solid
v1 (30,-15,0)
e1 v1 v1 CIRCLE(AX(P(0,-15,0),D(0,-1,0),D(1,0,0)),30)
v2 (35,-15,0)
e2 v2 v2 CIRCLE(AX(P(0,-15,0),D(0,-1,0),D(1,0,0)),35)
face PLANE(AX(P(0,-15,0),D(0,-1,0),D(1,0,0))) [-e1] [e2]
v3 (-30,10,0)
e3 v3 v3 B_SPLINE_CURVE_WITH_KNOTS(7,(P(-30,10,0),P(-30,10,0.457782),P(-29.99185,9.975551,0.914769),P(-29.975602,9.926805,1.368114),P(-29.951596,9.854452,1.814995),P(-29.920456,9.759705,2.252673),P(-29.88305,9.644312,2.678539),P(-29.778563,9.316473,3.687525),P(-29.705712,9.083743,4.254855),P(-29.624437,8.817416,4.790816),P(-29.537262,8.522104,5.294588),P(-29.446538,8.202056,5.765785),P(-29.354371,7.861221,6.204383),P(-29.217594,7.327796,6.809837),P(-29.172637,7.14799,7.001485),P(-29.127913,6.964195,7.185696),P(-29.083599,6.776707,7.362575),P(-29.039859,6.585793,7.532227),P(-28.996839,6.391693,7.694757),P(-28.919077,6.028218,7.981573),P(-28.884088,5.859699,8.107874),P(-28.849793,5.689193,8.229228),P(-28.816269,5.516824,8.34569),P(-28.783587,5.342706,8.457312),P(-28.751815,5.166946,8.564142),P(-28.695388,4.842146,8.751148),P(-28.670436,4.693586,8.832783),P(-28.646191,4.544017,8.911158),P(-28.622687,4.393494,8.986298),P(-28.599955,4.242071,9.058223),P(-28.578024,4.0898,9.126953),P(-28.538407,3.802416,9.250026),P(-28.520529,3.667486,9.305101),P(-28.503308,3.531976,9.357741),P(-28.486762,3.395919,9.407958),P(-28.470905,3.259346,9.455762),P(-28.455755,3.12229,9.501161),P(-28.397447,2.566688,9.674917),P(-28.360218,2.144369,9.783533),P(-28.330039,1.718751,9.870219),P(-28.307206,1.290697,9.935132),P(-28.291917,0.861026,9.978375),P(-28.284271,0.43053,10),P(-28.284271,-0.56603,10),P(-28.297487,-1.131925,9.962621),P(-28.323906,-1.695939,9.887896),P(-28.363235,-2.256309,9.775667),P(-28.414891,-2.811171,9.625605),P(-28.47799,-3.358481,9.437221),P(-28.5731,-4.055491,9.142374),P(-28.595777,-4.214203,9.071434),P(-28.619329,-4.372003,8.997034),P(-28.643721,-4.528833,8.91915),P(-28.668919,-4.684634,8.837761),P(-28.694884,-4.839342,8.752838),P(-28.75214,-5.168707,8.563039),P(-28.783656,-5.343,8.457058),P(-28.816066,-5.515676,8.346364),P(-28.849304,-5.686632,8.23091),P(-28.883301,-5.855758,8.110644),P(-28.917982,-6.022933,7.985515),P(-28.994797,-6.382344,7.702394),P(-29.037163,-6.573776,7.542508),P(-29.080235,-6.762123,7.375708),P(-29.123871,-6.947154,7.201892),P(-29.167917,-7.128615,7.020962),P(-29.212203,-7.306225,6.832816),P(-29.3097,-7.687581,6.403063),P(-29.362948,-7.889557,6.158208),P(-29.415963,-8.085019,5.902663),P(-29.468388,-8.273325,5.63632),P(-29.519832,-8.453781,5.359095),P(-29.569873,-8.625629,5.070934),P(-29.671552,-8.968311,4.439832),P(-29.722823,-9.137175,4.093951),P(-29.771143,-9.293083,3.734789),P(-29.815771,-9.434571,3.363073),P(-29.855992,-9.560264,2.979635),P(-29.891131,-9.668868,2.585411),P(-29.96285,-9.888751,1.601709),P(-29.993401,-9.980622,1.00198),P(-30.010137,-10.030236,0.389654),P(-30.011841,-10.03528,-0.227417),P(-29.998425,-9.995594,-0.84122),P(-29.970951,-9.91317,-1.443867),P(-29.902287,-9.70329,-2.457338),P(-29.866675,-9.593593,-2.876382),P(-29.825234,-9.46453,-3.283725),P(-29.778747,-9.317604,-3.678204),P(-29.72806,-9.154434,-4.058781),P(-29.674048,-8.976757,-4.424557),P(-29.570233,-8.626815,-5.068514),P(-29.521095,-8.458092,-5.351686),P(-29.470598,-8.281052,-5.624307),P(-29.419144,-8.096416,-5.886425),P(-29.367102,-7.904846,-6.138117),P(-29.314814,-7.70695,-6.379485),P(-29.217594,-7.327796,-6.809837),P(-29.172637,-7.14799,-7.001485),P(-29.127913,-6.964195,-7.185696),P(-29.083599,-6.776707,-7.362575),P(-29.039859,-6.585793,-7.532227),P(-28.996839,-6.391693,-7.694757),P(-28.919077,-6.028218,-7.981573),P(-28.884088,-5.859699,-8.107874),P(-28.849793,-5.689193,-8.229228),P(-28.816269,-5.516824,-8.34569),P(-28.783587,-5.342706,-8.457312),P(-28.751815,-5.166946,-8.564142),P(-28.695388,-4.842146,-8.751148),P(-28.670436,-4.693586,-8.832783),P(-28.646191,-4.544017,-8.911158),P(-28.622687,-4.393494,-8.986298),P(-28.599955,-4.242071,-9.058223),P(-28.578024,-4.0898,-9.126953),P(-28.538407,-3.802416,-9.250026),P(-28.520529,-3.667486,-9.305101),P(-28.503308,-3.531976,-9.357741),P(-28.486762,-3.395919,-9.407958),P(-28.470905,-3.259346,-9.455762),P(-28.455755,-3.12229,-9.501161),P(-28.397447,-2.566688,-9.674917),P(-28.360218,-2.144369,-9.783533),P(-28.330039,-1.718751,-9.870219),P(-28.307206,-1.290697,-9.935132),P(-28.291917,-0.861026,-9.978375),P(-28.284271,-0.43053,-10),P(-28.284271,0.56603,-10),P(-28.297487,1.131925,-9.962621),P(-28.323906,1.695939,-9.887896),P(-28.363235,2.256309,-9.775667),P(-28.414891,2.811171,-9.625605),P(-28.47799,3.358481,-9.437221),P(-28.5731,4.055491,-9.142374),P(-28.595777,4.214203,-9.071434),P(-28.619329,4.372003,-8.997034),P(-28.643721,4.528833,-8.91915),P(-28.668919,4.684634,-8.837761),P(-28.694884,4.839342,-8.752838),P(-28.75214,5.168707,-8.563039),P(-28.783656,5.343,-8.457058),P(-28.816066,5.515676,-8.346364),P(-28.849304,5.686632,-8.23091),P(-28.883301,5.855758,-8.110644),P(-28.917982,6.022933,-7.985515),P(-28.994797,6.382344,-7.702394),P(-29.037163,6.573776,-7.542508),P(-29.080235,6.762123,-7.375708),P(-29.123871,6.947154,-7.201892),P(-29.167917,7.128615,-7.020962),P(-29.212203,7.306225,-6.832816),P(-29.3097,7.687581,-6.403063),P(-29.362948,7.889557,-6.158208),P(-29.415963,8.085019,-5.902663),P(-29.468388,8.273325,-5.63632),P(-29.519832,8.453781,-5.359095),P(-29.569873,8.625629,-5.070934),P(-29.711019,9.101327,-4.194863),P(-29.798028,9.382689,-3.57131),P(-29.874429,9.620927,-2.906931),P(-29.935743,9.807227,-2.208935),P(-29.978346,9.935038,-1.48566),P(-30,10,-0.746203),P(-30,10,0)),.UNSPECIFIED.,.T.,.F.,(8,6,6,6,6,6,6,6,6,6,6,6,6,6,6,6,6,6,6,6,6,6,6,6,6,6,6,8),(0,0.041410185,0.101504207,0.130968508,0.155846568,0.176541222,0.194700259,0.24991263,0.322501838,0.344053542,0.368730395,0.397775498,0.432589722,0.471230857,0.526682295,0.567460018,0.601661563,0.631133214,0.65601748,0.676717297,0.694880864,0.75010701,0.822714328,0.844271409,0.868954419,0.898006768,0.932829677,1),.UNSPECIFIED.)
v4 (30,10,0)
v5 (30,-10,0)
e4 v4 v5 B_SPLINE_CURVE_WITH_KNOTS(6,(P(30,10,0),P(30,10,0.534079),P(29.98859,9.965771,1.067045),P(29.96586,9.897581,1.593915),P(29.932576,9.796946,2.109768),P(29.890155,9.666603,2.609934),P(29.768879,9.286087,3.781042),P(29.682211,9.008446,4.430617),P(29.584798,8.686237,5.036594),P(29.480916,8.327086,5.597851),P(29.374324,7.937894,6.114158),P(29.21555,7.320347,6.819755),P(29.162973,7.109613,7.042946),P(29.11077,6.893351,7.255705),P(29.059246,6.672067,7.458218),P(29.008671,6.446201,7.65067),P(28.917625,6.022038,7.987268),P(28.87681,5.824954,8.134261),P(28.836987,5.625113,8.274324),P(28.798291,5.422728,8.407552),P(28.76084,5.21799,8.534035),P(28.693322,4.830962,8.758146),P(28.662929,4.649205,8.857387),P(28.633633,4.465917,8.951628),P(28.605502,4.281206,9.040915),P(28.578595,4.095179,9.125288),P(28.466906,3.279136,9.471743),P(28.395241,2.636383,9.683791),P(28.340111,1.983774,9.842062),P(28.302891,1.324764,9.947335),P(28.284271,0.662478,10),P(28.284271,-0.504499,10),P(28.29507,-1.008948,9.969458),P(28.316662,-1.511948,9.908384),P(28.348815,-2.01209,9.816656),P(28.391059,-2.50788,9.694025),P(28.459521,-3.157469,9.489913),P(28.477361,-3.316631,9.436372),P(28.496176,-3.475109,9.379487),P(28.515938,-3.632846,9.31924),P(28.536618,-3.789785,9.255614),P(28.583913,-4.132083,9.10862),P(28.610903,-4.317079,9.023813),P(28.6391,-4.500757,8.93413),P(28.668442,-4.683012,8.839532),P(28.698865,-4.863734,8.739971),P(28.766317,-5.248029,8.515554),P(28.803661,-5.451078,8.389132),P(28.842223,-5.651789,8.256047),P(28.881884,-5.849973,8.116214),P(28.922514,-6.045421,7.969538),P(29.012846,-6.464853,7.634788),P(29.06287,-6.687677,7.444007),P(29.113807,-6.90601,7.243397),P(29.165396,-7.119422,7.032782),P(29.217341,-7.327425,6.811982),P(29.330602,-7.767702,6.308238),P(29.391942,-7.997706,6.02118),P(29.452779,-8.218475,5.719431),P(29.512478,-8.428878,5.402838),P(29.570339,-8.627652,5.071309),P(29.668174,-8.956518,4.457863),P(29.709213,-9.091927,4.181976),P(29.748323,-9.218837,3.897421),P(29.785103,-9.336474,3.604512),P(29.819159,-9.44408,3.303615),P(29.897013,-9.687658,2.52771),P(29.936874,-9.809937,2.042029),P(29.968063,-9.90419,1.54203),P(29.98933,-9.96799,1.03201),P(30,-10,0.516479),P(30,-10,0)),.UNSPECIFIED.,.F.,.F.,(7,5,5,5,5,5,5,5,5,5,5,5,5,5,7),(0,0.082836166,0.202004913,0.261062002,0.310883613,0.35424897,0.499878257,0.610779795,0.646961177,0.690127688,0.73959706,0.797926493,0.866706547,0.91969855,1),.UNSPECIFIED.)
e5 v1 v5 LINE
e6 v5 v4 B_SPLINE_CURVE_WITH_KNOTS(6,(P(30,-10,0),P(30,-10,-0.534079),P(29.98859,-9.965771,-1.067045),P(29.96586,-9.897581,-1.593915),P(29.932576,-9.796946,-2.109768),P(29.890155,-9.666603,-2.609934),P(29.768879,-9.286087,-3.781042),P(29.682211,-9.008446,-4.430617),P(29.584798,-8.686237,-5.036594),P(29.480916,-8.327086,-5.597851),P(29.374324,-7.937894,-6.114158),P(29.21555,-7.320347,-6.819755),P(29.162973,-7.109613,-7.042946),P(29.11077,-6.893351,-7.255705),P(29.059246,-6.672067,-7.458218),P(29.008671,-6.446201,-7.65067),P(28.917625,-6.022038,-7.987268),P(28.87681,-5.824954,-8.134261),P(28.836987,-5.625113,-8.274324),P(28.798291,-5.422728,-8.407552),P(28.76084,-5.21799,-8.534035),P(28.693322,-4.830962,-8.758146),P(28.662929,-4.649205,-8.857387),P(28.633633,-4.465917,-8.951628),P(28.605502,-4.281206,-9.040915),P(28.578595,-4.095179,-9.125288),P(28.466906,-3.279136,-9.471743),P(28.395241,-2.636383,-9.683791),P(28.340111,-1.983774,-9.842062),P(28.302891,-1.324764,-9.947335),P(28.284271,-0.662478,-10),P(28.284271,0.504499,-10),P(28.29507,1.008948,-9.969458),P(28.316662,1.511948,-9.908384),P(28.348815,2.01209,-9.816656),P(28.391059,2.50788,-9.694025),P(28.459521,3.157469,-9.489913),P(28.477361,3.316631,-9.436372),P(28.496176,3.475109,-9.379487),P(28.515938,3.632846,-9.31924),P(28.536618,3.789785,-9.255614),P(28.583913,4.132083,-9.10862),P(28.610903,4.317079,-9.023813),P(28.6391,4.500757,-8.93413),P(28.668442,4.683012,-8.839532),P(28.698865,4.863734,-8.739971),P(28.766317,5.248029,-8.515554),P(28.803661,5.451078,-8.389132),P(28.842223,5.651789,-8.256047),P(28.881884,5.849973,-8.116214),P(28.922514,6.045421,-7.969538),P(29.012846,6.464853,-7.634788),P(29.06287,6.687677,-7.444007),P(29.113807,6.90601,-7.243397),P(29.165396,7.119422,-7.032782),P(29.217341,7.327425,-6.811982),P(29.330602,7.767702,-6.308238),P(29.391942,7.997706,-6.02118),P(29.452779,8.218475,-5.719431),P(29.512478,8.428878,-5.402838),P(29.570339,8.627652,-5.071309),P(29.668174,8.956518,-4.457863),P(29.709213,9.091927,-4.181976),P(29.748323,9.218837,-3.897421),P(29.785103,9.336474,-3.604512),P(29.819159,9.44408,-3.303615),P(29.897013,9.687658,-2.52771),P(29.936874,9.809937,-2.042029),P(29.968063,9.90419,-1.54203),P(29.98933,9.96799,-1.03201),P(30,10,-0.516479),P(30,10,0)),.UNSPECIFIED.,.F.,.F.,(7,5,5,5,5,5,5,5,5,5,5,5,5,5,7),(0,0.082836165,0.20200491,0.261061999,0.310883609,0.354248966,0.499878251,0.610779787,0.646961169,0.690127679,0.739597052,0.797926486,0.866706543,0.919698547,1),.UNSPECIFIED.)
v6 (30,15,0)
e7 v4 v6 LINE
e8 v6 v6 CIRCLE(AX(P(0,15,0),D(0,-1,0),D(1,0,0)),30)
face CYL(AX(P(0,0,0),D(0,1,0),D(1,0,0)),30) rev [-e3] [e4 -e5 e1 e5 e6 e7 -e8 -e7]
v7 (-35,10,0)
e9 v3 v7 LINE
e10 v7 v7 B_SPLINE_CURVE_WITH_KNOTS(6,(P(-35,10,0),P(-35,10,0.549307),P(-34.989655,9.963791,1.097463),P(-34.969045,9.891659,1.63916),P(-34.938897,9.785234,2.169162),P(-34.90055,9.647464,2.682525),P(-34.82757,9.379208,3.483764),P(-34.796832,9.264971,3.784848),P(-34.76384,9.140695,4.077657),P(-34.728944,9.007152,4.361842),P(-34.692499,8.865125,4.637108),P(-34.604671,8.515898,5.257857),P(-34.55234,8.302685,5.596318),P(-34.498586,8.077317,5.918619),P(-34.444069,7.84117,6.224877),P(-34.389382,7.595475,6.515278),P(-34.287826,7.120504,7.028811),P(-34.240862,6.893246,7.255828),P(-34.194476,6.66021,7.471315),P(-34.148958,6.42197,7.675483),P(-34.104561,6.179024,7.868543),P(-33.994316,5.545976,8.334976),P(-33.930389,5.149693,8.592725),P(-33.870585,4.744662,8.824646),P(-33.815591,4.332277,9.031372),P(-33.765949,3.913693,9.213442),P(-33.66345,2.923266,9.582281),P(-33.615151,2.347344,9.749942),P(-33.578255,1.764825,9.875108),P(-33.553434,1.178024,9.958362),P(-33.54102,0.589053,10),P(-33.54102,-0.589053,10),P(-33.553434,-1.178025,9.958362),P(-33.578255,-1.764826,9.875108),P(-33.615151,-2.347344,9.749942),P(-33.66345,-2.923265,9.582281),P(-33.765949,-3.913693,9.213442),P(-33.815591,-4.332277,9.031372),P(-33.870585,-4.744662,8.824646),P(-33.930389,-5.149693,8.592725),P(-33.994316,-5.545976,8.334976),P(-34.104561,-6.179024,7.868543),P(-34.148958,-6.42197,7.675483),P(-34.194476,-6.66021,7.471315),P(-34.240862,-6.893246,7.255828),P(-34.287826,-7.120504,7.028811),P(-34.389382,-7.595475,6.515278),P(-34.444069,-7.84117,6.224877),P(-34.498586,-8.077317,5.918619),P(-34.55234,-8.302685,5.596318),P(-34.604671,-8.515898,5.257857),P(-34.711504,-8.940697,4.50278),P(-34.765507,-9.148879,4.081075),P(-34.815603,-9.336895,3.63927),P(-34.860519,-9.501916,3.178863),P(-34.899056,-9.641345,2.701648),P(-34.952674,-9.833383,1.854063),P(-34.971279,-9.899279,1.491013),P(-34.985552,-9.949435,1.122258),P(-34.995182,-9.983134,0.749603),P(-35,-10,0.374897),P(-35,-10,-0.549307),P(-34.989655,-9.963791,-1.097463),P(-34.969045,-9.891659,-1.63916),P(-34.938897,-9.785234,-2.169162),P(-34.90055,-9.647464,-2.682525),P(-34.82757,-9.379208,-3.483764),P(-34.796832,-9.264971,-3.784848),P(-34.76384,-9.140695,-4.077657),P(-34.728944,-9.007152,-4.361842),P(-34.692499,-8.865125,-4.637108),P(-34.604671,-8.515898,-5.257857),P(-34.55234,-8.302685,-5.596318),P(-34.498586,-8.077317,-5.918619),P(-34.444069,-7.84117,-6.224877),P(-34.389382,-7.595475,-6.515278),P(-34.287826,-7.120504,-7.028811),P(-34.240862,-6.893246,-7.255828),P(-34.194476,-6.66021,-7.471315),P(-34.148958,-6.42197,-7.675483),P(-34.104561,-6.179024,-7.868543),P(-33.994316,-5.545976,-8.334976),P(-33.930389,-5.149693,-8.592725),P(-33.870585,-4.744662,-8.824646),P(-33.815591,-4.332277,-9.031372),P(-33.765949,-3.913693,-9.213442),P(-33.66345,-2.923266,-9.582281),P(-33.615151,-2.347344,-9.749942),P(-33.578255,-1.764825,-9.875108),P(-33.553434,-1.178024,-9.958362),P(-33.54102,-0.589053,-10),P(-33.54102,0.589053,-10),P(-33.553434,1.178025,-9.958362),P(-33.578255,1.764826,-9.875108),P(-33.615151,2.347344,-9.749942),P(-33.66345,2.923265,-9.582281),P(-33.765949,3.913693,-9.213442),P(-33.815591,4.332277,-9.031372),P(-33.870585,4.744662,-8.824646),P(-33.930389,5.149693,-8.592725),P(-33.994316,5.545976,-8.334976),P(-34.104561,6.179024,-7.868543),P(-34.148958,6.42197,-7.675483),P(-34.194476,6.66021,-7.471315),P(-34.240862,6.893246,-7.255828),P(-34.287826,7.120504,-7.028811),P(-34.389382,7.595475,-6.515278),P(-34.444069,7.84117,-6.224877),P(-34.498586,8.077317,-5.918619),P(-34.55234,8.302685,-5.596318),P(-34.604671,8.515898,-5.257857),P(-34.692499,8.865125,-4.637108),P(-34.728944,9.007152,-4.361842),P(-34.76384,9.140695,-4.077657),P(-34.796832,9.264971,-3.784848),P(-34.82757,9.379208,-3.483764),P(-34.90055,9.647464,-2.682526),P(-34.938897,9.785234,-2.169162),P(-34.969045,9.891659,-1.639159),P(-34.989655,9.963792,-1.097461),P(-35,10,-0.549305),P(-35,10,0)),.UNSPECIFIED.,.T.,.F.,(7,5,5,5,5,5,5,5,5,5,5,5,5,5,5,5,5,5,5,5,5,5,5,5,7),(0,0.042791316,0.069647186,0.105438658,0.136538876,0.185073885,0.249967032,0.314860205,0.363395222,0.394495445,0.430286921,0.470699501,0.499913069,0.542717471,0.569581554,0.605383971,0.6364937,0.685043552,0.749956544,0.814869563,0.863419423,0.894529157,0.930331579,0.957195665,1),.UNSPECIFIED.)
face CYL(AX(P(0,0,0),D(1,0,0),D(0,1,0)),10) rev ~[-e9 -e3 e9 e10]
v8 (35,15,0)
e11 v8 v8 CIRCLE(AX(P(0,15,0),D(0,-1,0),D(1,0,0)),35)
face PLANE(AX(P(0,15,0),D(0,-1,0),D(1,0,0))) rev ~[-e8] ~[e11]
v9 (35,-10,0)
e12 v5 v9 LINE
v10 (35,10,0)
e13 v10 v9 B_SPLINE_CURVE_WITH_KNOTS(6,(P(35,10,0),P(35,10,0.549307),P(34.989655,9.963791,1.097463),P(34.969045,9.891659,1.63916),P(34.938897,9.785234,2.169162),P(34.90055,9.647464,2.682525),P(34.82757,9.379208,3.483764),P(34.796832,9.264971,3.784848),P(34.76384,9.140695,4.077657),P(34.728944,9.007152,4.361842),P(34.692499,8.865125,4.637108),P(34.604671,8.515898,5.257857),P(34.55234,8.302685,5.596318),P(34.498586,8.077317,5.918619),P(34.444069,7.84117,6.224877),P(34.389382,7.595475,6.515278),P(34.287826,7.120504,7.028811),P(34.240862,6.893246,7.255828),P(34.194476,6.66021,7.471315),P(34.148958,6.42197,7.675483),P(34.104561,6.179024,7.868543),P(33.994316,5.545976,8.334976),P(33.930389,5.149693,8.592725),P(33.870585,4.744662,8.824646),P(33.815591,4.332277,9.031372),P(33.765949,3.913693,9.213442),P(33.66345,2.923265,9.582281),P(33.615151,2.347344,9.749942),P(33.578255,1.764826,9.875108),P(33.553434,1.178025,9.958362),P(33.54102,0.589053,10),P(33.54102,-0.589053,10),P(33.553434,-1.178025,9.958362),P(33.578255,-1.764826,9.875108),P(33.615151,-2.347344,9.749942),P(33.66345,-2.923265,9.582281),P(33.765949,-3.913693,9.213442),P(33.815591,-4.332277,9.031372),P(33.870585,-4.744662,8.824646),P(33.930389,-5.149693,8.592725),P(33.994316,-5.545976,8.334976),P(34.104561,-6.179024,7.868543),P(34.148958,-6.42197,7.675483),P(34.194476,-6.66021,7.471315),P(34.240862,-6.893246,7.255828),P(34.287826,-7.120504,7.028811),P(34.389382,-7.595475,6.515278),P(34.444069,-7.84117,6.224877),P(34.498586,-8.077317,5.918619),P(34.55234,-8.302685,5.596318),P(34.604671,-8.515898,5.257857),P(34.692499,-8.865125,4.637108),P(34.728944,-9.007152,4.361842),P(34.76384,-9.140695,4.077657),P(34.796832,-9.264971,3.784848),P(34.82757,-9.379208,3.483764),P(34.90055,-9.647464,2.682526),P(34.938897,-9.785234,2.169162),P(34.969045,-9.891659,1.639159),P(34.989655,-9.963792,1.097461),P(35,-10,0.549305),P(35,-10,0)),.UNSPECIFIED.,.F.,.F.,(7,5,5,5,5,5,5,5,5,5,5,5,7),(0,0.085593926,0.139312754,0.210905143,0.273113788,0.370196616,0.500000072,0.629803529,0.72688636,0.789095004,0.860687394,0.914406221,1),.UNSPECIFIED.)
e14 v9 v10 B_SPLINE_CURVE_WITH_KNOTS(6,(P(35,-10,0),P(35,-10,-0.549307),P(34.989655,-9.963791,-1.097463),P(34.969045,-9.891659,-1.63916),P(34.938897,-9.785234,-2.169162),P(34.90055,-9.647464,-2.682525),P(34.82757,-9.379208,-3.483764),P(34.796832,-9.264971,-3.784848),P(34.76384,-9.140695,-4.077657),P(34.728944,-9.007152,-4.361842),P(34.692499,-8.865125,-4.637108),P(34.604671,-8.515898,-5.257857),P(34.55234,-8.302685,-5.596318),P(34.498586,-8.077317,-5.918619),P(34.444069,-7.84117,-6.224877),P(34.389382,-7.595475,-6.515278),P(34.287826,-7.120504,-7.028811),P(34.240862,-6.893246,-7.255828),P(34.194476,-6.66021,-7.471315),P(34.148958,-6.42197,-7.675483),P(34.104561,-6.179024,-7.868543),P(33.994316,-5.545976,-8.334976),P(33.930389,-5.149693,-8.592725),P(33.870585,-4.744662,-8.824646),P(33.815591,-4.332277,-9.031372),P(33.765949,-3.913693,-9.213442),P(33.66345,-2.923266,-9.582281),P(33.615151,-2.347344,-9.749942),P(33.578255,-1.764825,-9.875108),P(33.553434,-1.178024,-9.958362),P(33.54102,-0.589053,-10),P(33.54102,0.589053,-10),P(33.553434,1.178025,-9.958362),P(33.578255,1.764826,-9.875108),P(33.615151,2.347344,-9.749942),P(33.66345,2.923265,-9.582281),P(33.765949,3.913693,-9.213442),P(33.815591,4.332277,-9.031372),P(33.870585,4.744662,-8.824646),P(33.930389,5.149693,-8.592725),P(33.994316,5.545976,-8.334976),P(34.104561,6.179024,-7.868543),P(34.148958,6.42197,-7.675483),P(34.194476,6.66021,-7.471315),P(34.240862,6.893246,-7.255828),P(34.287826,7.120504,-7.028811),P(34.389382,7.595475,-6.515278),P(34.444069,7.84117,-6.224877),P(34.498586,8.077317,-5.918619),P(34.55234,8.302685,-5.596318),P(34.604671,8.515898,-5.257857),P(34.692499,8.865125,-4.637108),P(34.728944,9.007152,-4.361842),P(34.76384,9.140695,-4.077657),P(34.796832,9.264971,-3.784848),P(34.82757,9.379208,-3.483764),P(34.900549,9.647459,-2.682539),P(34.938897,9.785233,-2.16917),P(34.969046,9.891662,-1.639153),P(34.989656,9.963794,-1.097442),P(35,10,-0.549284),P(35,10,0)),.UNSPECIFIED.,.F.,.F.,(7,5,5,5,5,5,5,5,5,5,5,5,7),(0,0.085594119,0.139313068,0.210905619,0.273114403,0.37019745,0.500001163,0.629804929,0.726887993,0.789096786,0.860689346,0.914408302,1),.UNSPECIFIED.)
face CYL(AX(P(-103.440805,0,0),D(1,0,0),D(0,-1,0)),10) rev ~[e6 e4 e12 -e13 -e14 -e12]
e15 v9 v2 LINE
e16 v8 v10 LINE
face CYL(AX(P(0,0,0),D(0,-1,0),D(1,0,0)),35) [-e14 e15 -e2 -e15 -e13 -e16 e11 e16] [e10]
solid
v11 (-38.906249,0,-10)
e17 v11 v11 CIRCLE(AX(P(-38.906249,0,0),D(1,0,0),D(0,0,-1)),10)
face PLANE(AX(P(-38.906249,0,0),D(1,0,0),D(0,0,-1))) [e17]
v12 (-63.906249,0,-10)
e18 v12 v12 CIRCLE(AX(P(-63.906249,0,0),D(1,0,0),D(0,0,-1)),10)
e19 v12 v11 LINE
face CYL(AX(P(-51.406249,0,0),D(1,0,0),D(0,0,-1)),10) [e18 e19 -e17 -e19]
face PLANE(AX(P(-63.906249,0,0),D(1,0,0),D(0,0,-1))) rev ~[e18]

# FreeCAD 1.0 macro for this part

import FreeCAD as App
import Part
import Sketcher
Q = App.Units.Quantity


def add_polygon(sketch, points):
    """Adds a closed chain of lines whose ends are joined by coincident constraints."""
    first, n = sketch.GeometryCount, len(points)
    for a, b in zip(points, points[1:] + points[:1]):
        sketch.addGeometry(Part.LineSegment(App.Vector(*a, 0), App.Vector(*b, 0)), False)
    for i in range(n):
        sketch.addConstraint(Sketcher.Constraint("Coincident", first + i, 2, first + (i + 1) % n, 1))

doc = App.newDocument("Part")
body = doc.addObject("PartDesign::Body", "Body")

sketch1 = body.newObject("Sketcher::SketchObject", "Sketch")
sketch1.AttachmentSupport = (doc.getObject("XZ_Plane"), [""])
sketch1.MapMode = "FlatFace"
sketch1.addGeometry([
    Part.Circle(App.Vector(0, 0, 0), App.Vector(0, 0, 1), 35),
    Part.Circle(App.Vector(0, 0, 0), App.Vector(0, 0, 1), 30),
], False)
sketch1.addConstraint([
    Sketcher.Constraint("Coincident", 0, 3, -1, 1),
    Sketcher.Constraint("Coincident", 1, 3, -1, 1),
    Sketcher.Constraint("Diameter", 0, Q("70 mm")),
    Sketcher.Constraint("Diameter", 1, Q("60 mm")),
])
pad1 = body.newObject("PartDesign::Pad", "Pad")
pad1.Profile = sketch1
pad1.Length = 30
pad1.Midplane = True

sketch2 = body.newObject("Sketcher::SketchObject", "Sketch001")
sketch2.AttachmentSupport = (doc.getObject("YZ_Plane"), [""])
sketch2.MapMode = "FlatFace"
sketch2.addGeometry(Part.Circle(App.Vector(0, 0, 0), App.Vector(0, 0, 1), 10), False)
sketch2.addConstraint([
    Sketcher.Constraint("Coincident", 0, 3, -1, 1),
    Sketcher.Constraint("Diameter", 0, Q("20 mm")),
])
pocket1 = body.newObject("PartDesign::Pocket", "Pocket")
pocket1.Profile = sketch2
pocket1.Type = "ThroughAll"

sketch3 = body.newObject("Sketcher::SketchObject", "Sketch002")
sketch3.AttachmentSupport = (doc.getObject("YZ_Plane"), [""])
sketch3.MapMode = "FlatFace"
sketch3.addGeometry(Part.Circle(App.Vector(0, 0, 0), App.Vector(0, 0, 1), 10), False)
sketch3.addConstraint([
    Sketcher.Constraint("Coincident", 0, 3, -1, 1),
    Sketcher.Constraint("Diameter", 0, Q("20 mm")),
])
doc.recompute()
hole = body.newObject("PartDesign::Hole", "Hole")
hole.Profile = sketch3
hole.ThreadType = "None"
hole.Diameter = 20
hole.DepthType = "ThroughAll"
hole.Reversed = True
body2 = doc.addObject("PartDesign::Body", "Body001")

sketch4 = body2.newObject("Sketcher::SketchObject", "Sketch003")
sketch4.AttachmentSupport = (doc.getObject("XZ_Plane001"), [""])
sketch4.MapMode = "FlatFace"
add_polygon(sketch4, [(-64, 0), (-64, -10), (-39, -10), (-39, 0)])
sketch4.addConstraint([
    Sketcher.Constraint("Vertical", 0),
    Sketcher.Constraint("Horizontal", 1),
    Sketcher.Constraint("Vertical", 2),
    Sketcher.Constraint("Horizontal", 3),
    Sketcher.Constraint("PointOnObject", 2, 2, -1),
    Sketcher.Constraint("DistanceX", 1, 1, 1, 2, Q("25 mm")),
    Sketcher.Constraint("DistanceY", 0, 2, 0, 1, Q("10 mm")),
    Sketcher.Constraint("DistanceX", 0, 2, -1, 1, Q("63.906249 mm")),
])
revolution = body2.newObject("PartDesign::Revolution", "Revolution")
revolution.Profile = sketch4
revolution.ReferenceAxis = (sketch4, ["H_Axis"])
revolution.Angle = 360

doc.recompute()
